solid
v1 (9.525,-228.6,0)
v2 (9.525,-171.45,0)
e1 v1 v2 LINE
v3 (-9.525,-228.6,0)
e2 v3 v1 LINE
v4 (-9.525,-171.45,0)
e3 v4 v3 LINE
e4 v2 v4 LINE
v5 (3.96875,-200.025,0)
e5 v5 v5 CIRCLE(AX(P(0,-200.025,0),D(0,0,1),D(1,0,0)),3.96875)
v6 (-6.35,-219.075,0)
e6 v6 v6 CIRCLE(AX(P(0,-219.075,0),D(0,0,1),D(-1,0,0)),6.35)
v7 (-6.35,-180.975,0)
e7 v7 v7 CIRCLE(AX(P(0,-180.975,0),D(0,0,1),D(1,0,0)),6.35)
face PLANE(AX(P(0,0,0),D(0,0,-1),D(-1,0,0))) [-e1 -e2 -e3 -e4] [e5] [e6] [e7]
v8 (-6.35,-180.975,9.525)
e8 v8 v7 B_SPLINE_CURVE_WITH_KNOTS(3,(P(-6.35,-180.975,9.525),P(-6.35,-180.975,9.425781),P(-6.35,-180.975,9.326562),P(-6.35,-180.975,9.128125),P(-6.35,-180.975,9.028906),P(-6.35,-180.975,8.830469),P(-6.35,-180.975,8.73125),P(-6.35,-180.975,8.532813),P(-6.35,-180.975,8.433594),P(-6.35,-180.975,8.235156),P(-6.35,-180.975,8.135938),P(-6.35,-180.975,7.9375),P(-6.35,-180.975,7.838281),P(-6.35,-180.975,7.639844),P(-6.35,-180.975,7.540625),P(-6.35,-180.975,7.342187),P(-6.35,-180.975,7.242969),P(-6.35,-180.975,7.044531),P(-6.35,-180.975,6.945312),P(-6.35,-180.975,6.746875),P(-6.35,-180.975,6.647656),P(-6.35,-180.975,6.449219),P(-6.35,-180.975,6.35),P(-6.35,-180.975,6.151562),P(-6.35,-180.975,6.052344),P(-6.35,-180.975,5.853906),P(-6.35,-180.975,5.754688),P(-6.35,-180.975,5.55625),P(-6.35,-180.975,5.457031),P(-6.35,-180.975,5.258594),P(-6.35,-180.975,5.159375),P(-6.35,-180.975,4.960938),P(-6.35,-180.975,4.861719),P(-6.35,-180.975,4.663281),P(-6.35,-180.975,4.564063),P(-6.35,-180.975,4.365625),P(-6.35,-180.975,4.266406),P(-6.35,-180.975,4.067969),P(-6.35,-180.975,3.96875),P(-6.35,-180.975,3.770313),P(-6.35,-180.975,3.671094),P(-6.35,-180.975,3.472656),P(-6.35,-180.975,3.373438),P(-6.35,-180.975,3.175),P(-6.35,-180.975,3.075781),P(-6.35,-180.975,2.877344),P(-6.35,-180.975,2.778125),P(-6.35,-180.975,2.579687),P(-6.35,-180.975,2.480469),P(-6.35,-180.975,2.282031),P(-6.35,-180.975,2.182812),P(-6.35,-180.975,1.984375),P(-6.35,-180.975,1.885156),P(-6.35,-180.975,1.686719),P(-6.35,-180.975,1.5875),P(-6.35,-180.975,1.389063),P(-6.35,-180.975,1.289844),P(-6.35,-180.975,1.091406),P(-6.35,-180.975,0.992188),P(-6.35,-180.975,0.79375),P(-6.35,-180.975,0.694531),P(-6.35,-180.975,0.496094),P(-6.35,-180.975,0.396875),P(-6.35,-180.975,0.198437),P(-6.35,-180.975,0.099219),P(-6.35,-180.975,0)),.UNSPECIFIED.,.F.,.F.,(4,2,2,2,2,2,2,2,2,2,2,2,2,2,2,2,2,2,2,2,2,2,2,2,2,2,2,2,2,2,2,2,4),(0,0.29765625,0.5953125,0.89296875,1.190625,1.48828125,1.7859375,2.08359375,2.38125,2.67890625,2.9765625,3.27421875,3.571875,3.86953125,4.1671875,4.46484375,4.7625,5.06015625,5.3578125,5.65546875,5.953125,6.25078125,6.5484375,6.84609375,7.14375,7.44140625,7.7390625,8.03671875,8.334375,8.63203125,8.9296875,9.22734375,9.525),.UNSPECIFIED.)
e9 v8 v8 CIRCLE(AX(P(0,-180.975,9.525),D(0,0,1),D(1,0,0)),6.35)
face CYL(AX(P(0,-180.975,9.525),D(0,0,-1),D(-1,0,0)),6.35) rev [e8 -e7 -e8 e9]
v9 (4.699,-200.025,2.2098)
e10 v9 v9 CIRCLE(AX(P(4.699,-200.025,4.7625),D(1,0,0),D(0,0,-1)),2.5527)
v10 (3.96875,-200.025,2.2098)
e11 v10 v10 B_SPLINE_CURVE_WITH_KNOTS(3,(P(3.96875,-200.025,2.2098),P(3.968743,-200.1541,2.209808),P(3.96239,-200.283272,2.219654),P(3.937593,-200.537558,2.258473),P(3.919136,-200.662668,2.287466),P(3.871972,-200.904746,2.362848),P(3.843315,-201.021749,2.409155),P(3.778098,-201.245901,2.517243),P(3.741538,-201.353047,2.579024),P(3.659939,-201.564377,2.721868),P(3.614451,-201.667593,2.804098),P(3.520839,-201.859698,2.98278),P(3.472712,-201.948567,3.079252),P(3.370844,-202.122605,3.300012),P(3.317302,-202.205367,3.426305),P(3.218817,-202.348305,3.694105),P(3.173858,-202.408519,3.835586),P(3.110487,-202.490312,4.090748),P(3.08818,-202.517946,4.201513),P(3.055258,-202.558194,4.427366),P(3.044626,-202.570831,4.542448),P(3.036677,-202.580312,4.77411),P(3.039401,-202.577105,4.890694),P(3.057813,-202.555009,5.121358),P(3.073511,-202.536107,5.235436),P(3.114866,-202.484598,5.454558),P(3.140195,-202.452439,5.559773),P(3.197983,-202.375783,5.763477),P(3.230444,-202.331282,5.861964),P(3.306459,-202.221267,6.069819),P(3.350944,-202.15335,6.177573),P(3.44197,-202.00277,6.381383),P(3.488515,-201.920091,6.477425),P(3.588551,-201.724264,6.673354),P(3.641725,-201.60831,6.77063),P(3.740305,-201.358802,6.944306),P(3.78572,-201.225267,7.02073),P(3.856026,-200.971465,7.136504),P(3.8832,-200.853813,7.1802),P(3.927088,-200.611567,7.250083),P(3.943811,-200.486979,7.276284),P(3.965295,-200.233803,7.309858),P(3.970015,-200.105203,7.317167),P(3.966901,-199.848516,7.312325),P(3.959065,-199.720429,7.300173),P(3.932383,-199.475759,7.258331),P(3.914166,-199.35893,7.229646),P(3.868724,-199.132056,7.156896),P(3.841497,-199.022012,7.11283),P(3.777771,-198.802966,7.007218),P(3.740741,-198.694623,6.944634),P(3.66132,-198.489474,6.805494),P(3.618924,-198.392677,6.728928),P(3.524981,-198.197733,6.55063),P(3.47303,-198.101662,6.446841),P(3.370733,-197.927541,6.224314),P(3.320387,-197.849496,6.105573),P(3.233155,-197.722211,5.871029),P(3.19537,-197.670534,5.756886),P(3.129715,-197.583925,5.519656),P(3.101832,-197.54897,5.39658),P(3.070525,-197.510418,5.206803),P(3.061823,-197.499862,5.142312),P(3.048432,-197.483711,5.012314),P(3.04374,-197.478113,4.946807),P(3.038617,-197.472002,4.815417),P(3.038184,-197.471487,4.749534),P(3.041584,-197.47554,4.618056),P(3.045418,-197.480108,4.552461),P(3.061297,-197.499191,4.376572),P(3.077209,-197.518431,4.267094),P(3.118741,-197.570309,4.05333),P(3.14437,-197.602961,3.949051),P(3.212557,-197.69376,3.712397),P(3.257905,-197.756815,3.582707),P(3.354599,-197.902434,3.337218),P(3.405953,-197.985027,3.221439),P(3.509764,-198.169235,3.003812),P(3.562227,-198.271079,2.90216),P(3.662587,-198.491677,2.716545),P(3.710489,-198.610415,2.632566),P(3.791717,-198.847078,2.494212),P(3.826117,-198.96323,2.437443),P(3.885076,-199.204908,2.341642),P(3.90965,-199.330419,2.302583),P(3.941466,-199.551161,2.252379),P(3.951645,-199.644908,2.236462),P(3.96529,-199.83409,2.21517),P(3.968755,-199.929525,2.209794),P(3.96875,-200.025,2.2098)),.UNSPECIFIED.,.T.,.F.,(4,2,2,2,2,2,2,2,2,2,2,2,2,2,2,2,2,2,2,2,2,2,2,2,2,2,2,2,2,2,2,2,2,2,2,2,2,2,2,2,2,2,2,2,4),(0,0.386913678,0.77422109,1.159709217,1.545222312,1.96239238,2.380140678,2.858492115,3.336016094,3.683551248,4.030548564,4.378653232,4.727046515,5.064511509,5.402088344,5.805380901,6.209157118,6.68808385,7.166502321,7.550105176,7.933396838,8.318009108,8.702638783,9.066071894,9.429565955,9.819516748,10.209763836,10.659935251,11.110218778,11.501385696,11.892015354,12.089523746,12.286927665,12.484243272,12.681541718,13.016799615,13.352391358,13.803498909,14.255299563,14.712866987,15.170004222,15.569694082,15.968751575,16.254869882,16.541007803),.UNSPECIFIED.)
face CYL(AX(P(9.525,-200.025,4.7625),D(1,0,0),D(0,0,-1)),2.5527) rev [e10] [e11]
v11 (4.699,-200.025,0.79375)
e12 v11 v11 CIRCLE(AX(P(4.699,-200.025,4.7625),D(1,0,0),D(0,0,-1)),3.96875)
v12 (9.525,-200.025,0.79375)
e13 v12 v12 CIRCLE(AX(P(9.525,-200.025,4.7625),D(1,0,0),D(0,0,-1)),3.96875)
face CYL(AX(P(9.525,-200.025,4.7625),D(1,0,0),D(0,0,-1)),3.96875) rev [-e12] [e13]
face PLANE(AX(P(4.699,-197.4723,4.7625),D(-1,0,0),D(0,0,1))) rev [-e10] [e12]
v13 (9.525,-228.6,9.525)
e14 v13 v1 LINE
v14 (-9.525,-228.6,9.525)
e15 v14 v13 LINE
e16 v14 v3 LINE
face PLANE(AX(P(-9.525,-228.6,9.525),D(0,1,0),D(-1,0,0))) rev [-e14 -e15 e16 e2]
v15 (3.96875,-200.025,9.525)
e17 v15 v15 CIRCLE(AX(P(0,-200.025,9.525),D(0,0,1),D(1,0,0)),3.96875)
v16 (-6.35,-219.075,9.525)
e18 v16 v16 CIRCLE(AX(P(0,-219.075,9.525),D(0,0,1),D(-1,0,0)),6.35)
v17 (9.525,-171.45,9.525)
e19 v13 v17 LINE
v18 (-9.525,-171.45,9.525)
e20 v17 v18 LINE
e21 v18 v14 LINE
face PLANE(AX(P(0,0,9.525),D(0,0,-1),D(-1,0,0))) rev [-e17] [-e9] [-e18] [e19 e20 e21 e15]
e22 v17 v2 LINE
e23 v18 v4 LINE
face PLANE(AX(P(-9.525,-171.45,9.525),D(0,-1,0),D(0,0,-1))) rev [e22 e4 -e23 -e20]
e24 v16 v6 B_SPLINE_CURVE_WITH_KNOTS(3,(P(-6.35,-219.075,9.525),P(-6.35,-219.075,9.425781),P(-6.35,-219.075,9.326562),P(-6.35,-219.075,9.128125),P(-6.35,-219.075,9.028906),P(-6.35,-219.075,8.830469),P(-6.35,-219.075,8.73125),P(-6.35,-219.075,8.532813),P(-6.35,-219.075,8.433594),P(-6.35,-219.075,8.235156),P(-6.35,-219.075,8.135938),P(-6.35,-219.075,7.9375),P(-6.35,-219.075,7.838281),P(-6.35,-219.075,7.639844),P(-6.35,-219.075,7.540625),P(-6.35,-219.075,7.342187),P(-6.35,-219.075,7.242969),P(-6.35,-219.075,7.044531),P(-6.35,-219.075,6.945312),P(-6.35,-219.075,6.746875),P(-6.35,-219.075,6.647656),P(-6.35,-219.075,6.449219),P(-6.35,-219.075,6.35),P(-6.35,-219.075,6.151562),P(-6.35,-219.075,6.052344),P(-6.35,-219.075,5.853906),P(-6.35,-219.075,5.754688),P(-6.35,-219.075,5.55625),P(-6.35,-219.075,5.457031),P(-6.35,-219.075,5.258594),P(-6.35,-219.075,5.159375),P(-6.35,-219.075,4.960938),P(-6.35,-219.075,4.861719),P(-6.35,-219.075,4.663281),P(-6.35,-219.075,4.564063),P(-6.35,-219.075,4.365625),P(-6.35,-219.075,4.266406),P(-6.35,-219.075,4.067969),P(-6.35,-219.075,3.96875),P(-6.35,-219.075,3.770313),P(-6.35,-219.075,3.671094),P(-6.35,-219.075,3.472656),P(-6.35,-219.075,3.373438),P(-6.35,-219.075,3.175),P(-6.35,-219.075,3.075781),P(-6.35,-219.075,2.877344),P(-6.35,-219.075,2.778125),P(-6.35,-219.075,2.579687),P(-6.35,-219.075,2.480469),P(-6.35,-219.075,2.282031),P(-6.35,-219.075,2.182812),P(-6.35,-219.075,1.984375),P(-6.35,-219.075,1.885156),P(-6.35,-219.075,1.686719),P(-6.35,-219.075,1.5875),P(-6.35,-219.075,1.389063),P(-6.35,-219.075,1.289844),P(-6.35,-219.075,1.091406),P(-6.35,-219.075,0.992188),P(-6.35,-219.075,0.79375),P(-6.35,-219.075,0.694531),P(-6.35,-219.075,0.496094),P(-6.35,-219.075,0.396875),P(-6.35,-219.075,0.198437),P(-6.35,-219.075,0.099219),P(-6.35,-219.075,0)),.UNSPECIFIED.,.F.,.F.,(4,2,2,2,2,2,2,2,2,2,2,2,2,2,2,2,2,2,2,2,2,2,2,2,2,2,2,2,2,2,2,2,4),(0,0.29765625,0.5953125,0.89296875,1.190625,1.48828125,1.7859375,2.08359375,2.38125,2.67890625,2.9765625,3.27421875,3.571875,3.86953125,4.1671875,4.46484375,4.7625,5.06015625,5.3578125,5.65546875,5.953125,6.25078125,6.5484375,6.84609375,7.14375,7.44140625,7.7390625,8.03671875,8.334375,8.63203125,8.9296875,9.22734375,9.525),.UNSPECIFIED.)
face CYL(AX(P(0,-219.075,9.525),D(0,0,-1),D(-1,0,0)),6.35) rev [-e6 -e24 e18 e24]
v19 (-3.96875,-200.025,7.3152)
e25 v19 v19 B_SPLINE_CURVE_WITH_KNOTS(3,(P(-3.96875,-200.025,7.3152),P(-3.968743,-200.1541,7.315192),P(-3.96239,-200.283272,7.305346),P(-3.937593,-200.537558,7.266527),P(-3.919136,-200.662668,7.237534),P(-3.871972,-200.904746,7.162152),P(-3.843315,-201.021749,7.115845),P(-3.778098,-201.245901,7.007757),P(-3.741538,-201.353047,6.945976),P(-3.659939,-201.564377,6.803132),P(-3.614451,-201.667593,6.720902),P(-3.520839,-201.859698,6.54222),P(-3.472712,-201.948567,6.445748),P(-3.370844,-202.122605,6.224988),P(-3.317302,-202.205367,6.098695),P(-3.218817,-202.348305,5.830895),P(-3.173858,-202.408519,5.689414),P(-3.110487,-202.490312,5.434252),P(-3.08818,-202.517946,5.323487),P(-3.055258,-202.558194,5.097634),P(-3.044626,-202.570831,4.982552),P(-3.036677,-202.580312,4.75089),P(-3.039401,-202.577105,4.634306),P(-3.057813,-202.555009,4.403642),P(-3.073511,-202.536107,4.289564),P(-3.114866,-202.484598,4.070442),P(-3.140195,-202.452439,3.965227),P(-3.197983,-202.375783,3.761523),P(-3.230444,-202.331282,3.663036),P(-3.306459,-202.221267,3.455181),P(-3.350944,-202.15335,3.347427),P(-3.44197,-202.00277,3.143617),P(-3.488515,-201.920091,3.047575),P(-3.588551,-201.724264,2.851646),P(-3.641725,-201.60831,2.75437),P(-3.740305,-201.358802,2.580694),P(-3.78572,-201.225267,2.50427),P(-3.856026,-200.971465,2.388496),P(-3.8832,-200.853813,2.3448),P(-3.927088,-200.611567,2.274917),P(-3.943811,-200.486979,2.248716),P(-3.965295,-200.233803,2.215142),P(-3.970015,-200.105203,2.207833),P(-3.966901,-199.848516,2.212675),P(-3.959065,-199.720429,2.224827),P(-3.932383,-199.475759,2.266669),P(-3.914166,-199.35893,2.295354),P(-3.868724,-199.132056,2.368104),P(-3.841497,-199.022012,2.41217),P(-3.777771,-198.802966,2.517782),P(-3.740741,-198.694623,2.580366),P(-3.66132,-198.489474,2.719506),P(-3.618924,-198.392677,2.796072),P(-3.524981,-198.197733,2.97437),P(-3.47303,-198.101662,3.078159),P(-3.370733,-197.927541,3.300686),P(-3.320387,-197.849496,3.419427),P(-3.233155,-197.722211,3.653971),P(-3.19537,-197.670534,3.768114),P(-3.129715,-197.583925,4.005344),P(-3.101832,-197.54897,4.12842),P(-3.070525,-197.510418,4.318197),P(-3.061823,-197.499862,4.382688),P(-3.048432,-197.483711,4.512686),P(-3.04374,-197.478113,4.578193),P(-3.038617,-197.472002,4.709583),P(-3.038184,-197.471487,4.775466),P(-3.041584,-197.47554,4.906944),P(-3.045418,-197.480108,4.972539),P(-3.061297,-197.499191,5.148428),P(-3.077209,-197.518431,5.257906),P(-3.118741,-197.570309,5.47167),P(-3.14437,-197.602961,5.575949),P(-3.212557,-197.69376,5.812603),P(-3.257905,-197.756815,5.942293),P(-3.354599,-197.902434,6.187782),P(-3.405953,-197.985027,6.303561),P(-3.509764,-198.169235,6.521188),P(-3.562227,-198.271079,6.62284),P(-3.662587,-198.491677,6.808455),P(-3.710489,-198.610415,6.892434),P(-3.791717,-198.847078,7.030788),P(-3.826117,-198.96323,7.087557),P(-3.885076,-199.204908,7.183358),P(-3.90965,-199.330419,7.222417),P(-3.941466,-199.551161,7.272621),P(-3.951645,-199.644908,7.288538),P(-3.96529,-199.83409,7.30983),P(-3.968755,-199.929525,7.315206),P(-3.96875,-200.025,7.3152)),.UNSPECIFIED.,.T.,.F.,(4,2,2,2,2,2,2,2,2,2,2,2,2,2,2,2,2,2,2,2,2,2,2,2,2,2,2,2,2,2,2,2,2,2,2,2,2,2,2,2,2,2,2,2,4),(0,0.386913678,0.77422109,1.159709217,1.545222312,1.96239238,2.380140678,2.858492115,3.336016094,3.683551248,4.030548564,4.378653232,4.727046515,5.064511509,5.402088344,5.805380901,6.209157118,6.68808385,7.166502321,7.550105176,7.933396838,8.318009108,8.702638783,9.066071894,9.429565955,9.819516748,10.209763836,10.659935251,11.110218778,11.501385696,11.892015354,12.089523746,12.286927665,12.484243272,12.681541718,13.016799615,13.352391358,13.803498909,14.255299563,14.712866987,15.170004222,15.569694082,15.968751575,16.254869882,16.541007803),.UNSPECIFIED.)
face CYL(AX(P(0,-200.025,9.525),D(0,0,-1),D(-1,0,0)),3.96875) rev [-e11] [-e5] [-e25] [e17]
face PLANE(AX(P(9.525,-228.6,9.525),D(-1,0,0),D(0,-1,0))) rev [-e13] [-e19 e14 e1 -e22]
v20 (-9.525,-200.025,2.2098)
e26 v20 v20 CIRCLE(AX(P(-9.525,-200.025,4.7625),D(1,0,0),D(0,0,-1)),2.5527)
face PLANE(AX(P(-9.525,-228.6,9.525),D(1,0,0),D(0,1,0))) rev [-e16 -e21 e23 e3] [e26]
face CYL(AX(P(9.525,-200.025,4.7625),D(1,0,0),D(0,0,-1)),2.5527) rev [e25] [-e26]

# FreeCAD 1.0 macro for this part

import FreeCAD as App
import Part
import Sketcher
from FreeCAD import Vector
Q = App.Units.Quantity


def add_polygon(sketch, points):
    """Adds a closed chain of lines whose ends are joined by coincident constraints."""
    first, n = sketch.GeometryCount, len(points)
    for a, b in zip(points, points[1:] + points[:1]):
        sketch.addGeometry(Part.LineSegment(App.Vector(*a, 0), App.Vector(*b, 0)), False)
    for i in range(n):
        sketch.addConstraint(Sketcher.Constraint("Coincident", first + i, 2, first + (i + 1) % n, 1))

doc = App.newDocument("Part")
params = doc.addObject("Spreadsheet::Sheet", "Params")
for row, (alias, value) in enumerate([
    ("sketch1_diameter", "0.5 in"),
    ("sketch1_diameter2", "0.3125 in"),
    ("sketch1_width", "0.75 in"),
    ("sketch1_height", "2.25 in"),
    ("pad1_length", "0.375 in"),
    ("sketch2_diameter", "0.201 in"),
    ("hole_diameter", "0.201 in"),
    ("hole_depth", "0.75 in"),
    ("hole_cbore_diameter", "0.3125 in"),
    ("hole_cbore_depth", "0.19 in"),
], start=1):
    params.set(f"A{row}", alias)
    params.set(f"B{row}", "=" + value)
    params.setAlias(f"B{row}", alias)

body = doc.addObject("PartDesign::Body", "Body")

# Sketch on XY plane
sketch1 = body.newObject("Sketcher::SketchObject", "Sketch")
sketch1.AttachmentSupport = (doc.getObject("XY_Plane"), [""])
sketch1.MapMode = "FlatFace"
add_polygon(sketch1, [(-9.525, -171.45), (-9.525, -228.6), (9.525, -228.6), (9.525, -171.45)])  # lines 0-3
sketch1.addGeometry(Part.Circle(Vector(0, -219.075, 0), Vector(0, 0, 1), 6.35), False)  # 4
sketch1.addGeometry(Part.Circle(Vector(0, -200.025, 0), Vector(0, 0, 1), 3.96875), False)  # 5
sketch1.addGeometry(Part.Circle(Vector(0, -180.975, 0), Vector(0, 0, 1), 6.35), False)  # 6
sketch1.addConstraint([
    Sketcher.Constraint("Vertical", 0),
    Sketcher.Constraint("Horizontal", 1),
    Sketcher.Constraint("Vertical", 2),
    Sketcher.Constraint("Horizontal", 3),
    Sketcher.Constraint("Equal", 4, 6),
    Sketcher.Constraint("PointOnObject", 4, 3, -2),
    Sketcher.Constraint("PointOnObject", 5, 3, -2),
    Sketcher.Constraint("PointOnObject", 6, 3, -2),
    Sketcher.Constraint("Diameter", 4, Q("0.5 in")),
    Sketcher.Constraint("Diameter", 5, Q("0.3125 in")),
    Sketcher.Constraint("DistanceY", 0, 2, -1, 1, Q("9 in")),
    Sketcher.Constraint("DistanceX", 1, 1, 1, 2, Q("0.75 in")),
    Sketcher.Constraint("DistanceY", 0, 2, 0, 1, Q("2.25 in")),
    Sketcher.Constraint("DistanceY", 4, 3, 6, 3, Q("1.5 in")),
    Sketcher.Constraint("DistanceY", 4, 3, 5, 3, Q("0.75 in")),
    Sketcher.Constraint("DistanceY", 4, 3, -1, 1, Q("8.625 in")),
    Sketcher.Constraint("DistanceX", 0, 2, -1, 1, Q("0.375 in")),
])
sketch1.setExpression("Constraints[12]", "Params.sketch1_diameter")
sketch1.setExpression("Constraints[13]", "Params.sketch1_diameter2")
sketch1.setExpression("Constraints[15]", "Params.sketch1_width")
sketch1.setExpression("Constraints[16]", "Params.sketch1_height")
pad1 = body.newObject("PartDesign::Pad", "Pad")
pad1.Profile = sketch1
pad1.setExpression("Length", "Params.pad1_length")

# Sketch on YZ plane
sketch2 = body.newObject("Sketcher::SketchObject", "Sketch001")
sketch2.AttachmentSupport = (doc.getObject("YZ_Plane"), [""])
sketch2.MapMode = "FlatFace"
sketch2.AttachmentOffset = App.Placement(Vector(0, 0, 0.375 * 25.4), App.Rotation())
sketch2.addGeometry(Part.Circle(Vector(-200.025, 4.7625, 0), Vector(0, 0, 1), 2.5527), False)
sketch2.addConstraint([
    Sketcher.Constraint("Diameter", 0, Q("0.201 in")),
    Sketcher.Constraint("DistanceX", 0, 3, -1, 1, Q("7.875 in")),
    Sketcher.Constraint("DistanceY", -1, 1, 0, 3, Q("0.1875 in")),
])
sketch2.setExpression("Constraints[0]", "Params.sketch2_diameter")
doc.recompute()
hole = body.newObject("PartDesign::Hole", "Hole")
hole.Profile = sketch2
hole.ThreadType = "None"
hole.setExpression("Diameter", "Params.hole_diameter")
hole.DepthType = "Dimension"
hole.setExpression("Depth", "Params.hole_depth")
hole.DrillPoint = "Angled"
hole.DrillPointAngle = 118
hole.HoleCutType = "Counterbore"
hole.setExpression("HoleCutDiameter", "Params.hole_cbore_diameter")
hole.setExpression("HoleCutDepth", "Params.hole_cbore_depth")

doc.recompute()
